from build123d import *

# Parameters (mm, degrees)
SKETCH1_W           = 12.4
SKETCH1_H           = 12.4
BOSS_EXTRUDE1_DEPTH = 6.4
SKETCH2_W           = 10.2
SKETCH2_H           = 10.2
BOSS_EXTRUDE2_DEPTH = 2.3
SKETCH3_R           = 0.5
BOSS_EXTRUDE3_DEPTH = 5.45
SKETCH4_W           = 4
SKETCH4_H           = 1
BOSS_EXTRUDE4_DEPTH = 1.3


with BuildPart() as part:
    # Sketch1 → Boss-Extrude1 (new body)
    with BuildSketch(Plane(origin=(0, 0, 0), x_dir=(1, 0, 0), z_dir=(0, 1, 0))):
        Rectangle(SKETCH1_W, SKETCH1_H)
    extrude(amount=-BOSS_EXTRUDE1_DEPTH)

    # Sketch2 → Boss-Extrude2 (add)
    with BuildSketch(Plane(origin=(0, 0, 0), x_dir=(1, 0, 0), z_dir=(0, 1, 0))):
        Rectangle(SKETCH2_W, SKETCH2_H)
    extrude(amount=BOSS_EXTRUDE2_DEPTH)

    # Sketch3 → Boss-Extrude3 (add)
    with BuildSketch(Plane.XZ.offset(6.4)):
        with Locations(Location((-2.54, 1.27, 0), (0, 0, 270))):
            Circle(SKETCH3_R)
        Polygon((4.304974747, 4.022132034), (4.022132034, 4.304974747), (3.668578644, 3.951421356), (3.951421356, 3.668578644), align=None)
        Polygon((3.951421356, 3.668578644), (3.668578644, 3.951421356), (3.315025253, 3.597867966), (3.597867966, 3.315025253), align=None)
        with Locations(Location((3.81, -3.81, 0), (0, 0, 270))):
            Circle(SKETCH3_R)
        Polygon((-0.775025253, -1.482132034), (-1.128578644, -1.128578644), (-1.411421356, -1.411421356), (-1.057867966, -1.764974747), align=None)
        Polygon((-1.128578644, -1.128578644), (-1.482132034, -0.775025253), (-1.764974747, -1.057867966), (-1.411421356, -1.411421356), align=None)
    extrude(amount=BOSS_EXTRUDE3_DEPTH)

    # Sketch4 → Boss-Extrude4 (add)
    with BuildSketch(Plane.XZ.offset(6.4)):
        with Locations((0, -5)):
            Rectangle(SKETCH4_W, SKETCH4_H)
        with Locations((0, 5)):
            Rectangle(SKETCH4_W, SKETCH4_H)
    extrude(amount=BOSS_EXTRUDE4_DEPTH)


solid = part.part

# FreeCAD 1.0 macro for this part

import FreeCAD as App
import Part
import Sketcher
from FreeCAD import Vector
Q = App.Units.Quantity

doc = App.newDocument("Part")
body = doc.addObject("PartDesign::Body", "Body")

sketch1 = body.newObject("Sketcher::SketchObject", "Sketch")
sketch1.AttachmentSupport = (doc.getObject("XZ_Plane"), [""])
sketch1.MapMode = "FlatFace"
sketch1.addGeometry(Part.LineSegment(Vector(-6.2, -6.2, 0), Vector(-6.2, 6.2, 0)), False)
sketch1.addGeometry(Part.LineSegment(Vector(-6.2, 6.2, 0), Vector(6.2, 6.2, 0)), False)
sketch1.addGeometry(Part.LineSegment(Vector(6.2, 6.2, 0), Vector(6.2, -6.2, 0)), False)
sketch1.addGeometry(Part.LineSegment(Vector(6.2, -6.2, 0), Vector(-6.2, -6.2, 0)), False)
sketch1.addConstraint(Sketcher.Constraint("Coincident", 0, 2, 1, 1))
sketch1.addConstraint(Sketcher.Constraint("Coincident", 1, 2, 2, 1))
sketch1.addConstraint(Sketcher.Constraint("Coincident", 2, 2, 3, 1))
sketch1.addConstraint(Sketcher.Constraint("Coincident", 3, 2, 0, 1))
sketch1.addConstraint(Sketcher.Constraint("Vertical", 0))
sketch1.addConstraint(Sketcher.Constraint("Horizontal", 1))
sketch1.addConstraint(Sketcher.Constraint("Vertical", 2))
sketch1.addConstraint(Sketcher.Constraint("Horizontal", 3))
sketch1.addConstraint(Sketcher.Constraint("Symmetric", 0, 2, 2, 2, -1, 1))
sketch1.addConstraint(Sketcher.Constraint("Equal", 3, 0))
sketch1.addConstraint(Sketcher.Constraint("DistanceX", 1, 1, 1, 2, 12.4))
pad1 = body.newObject("PartDesign::Pad", "Pad")
pad1.Profile = sketch1
pad1.Length = 6.4

sketch2 = body.newObject("Sketcher::SketchObject", "Sketch001")
sketch2.AttachmentSupport = (doc.getObject("XZ_Plane"), [""])
sketch2.MapMode = "FlatFace"
sketch2.addGeometry(Part.LineSegment(Vector(-5.1, -5.1, 0), Vector(-5.1, 5.1, 0)), False)
sketch2.addGeometry(Part.LineSegment(Vector(-5.1, 5.1, 0), Vector(5.1, 5.1, 0)), False)
sketch2.addGeometry(Part.LineSegment(Vector(5.1, 5.1, 0), Vector(5.1, -5.1, 0)), False)
sketch2.addGeometry(Part.LineSegment(Vector(5.1, -5.1, 0), Vector(-5.1, -5.1, 0)), False)
sketch2.addConstraint(Sketcher.Constraint("Coincident", 0, 2, 1, 1))
sketch2.addConstraint(Sketcher.Constraint("Coincident", 1, 2, 2, 1))
sketch2.addConstraint(Sketcher.Constraint("Coincident", 2, 2, 3, 1))
sketch2.addConstraint(Sketcher.Constraint("Coincident", 3, 2, 0, 1))
sketch2.addConstraint(Sketcher.Constraint("Vertical", 0))
sketch2.addConstraint(Sketcher.Constraint("Horizontal", 1))
sketch2.addConstraint(Sketcher.Constraint("Vertical", 2))
sketch2.addConstraint(Sketcher.Constraint("Horizontal", 3))
sketch2.addConstraint(Sketcher.Constraint("Symmetric", 0, 2, 2, 2, -1, 1))
sketch2.addConstraint(Sketcher.Constraint("Equal", 3, 0))
sketch2.addConstraint(Sketcher.Constraint("DistanceX", 1, 1, 1, 2, 10.2))
pad2 = body.newObject("PartDesign::Pad", "Pad001")
pad2.Profile = sketch2
pad2.Length = 2.3
pad2.Reversed = True

sketch3 = body.newObject("Sketcher::SketchObject", "Sketch002")
sketch3.AttachmentSupport = (doc.getObject("XZ_Plane"), [""])
sketch3.MapMode = "FlatFace"
sketch3.AttachmentOffset = App.Placement(Vector(0, 0, 6.4), App.Rotation())
sketch3.addGeometry(Part.Circle(Vector(-2.54, 1.27, 0), Vector(0, 0, 1), 0.5), False)
sketch3.addGeometry(Part.LineSegment(Vector(4.304975, 4.022132, 0), Vector(4.022132, 4.304975, 0)), False)
sketch3.addGeometry(Part.LineSegment(Vector(4.022132, 4.304975, 0), Vector(3.668579, 3.951421, 0)), False)
sketch3.addGeometry(Part.LineSegment(Vector(3.668579, 3.951421, 0), Vector(3.315025, 3.597868, 0)), False)
sketch3.addGeometry(Part.LineSegment(Vector(3.315025, 3.597868, 0), Vector(3.597868, 3.315025, 0)), False)
sketch3.addGeometry(Part.LineSegment(Vector(3.597868, 3.315025, 0), Vector(3.951421, 3.668579, 0)), False)
sketch3.addGeometry(Part.LineSegment(Vector(3.951421, 3.668579, 0), Vector(4.304975, 4.022132, 0)), False)
sketch3.addGeometry(Part.Circle(Vector(3.81, -3.81, 0), Vector(0, 0, 1), 0.5), False)
sketch3.addGeometry(Part.LineSegment(Vector(-0.775025, -1.482132, 0), Vector(-1.128579, -1.128579, 0)), False)
sketch3.addGeometry(Part.LineSegment(Vector(-1.128579, -1.128579, 0), Vector(-1.482132, -0.775025, 0)), False)
sketch3.addGeometry(Part.LineSegment(Vector(-1.482132, -0.775025, 0), Vector(-1.764975, -1.057868, 0)), False)
sketch3.addGeometry(Part.LineSegment(Vector(-1.764975, -1.057868, 0), Vector(-1.411421, -1.411421, 0)), False)
sketch3.addGeometry(Part.LineSegment(Vector(-1.411421, -1.411421, 0), Vector(-1.057868, -1.764975, 0)), False)
sketch3.addGeometry(Part.LineSegment(Vector(-1.057868, -1.764975, 0), Vector(-0.775025, -1.482132, 0)), False)
sketch3.addConstraint(Sketcher.Constraint("Coincident", 1, 2, 2, 1))
sketch3.addConstraint(Sketcher.Constraint("Coincident", 2, 2, 3, 1))
sketch3.addConstraint(Sketcher.Constraint("Coincident", 3, 2, 4, 1))
sketch3.addConstraint(Sketcher.Constraint("Coincident", 4, 2, 5, 1))
sketch3.addConstraint(Sketcher.Constraint("Coincident", 5, 2, 6, 1))
sketch3.addConstraint(Sketcher.Constraint("Coincident", 6, 2, 1, 1))
sketch3.addConstraint(Sketcher.Constraint("Coincident", 8, 2, 9, 1))
sketch3.addConstraint(Sketcher.Constraint("Coincident", 9, 2, 10, 1))
sketch3.addConstraint(Sketcher.Constraint("Coincident", 10, 2, 11, 1))
sketch3.addConstraint(Sketcher.Constraint("Coincident", 11, 2, 12, 1))
sketch3.addConstraint(Sketcher.Constraint("Coincident", 12, 2, 13, 1))
sketch3.addConstraint(Sketcher.Constraint("Coincident", 13, 2, 8, 1))
sketch3.addConstraint(Sketcher.Constraint("Equal", 0, 7))
sketch3.addConstraint(Sketcher.Constraint("Perpendicular", 1, 2))
sketch3.addConstraint(Sketcher.Constraint("Parallel", 2, 3))
sketch3.addConstraint(Sketcher.Constraint("Perpendicular", 3, 4))
sketch3.addConstraint(Sketcher.Constraint("Perpendicular", 4, 5))
sketch3.addConstraint(Sketcher.Constraint("Parallel", 5, 6))
sketch3.addConstraint(Sketcher.Constraint("Perpendicular", 6, 8))
sketch3.addConstraint(Sketcher.Constraint("Parallel", 8, 9))
sketch3.addConstraint(Sketcher.Constraint("Perpendicular", 9, 10))
sketch3.addConstraint(Sketcher.Constraint("Perpendicular", 10, 11))
sketch3.addConstraint(Sketcher.Constraint("Parallel", 11, 12))
sketch3.addConstraint(Sketcher.Constraint("Perpendicular", 12, 13))
sketch3.addConstraint(Sketcher.Constraint("Equal", 2, 3))
sketch3.addConstraint(Sketcher.Constraint("Equal", 3, 5))
sketch3.addConstraint(Sketcher.Constraint("Equal", 6, 8))
sketch3.addConstraint(Sketcher.Constraint("Equal", 8, 9))
sketch3.addConstraint(Sketcher.Constraint("Equal", 4, 10))
sketch3.addConstraint(Sketcher.Constraint("Equal", 9, 11))
sketch3.addConstraint(Sketcher.Constraint("Diameter", 0, 1.0))
sketch3.addConstraint(Sketcher.Constraint("Angle", 1, Q("135 deg")))
sketch3.addConstraint(Sketcher.Constraint("Distance", 1, 0.4))
sketch3.addConstraint(Sketcher.Constraint("Distance", 2, 0.5))
sketch3.addConstraint(Sketcher.Constraint("DistanceX", 0, 3, -1, 1, 2.54))
sketch3.addConstraint(Sketcher.Constraint("DistanceY", -1, 1, 0, 3, 1.27))
sketch3.addConstraint(Sketcher.Constraint("DistanceX", -1, 1, 7, 3, 3.81))
sketch3.addConstraint(Sketcher.Constraint("DistanceY", 7, 3, -1, 1, 3.81))
sketch3.addConstraint(Sketcher.Constraint("DistanceY", 8, 2, 2, 2, 5.08))
sketch3.addConstraint(Sketcher.Constraint("DistanceX", 9, 2, 4, 2, 5.08))
sketch3.addConstraint(Sketcher.Constraint("DistanceX", -1, 1, 2, 2, 3.668579))
sketch3.addConstraint(Sketcher.Constraint("DistanceY", -1, 1, 2, 2, 3.951421))
pad3 = body.newObject("PartDesign::Pad", "Pad002")
pad3.Profile = sketch3
pad3.Length = 5.45

sketch4 = body.newObject("Sketcher::SketchObject", "Sketch003")
sketch4.AttachmentSupport = (doc.getObject("XZ_Plane"), [""])
sketch4.MapMode = "FlatFace"
sketch4.AttachmentOffset = App.Placement(Vector(0, 0, 6.4), App.Rotation())
sketch4.addGeometry(Part.LineSegment(Vector(-2, -4.5, 0), Vector(-2, -5.5, 0)), False)
sketch4.addGeometry(Part.LineSegment(Vector(-2, -5.5, 0), Vector(2, -5.5, 0)), False)
sketch4.addGeometry(Part.LineSegment(Vector(2, -5.5, 0), Vector(2, -4.5, 0)), False)
sketch4.addGeometry(Part.LineSegment(Vector(2, -4.5, 0), Vector(-2, -4.5, 0)), False)
sketch4.addGeometry(Part.LineSegment(Vector(-2, 5.5, 0), Vector(-2, 4.5, 0)), False)
sketch4.addGeometry(Part.LineSegment(Vector(-2, 4.5, 0), Vector(2, 4.5, 0)), False)
sketch4.addGeometry(Part.LineSegment(Vector(2, 4.5, 0), Vector(2, 5.5, 0)), False)
sketch4.addGeometry(Part.LineSegment(Vector(2, 5.5, 0), Vector(-2, 5.5, 0)), False)
sketch4.addConstraint(Sketcher.Constraint("Coincident", 0, 2, 1, 1))
sketch4.addConstraint(Sketcher.Constraint("Coincident", 1, 2, 2, 1))
sketch4.addConstraint(Sketcher.Constraint("Coincident", 2, 2, 3, 1))
sketch4.addConstraint(Sketcher.Constraint("Coincident", 3, 2, 0, 1))
sketch4.addConstraint(Sketcher.Constraint("Coincident", 4, 2, 5, 1))
sketch4.addConstraint(Sketcher.Constraint("Coincident", 5, 2, 6, 1))
sketch4.addConstraint(Sketcher.Constraint("Coincident", 6, 2, 7, 1))
sketch4.addConstraint(Sketcher.Constraint("Coincident", 7, 2, 4, 1))
sketch4.addConstraint(Sketcher.Constraint("Vertical", 0))
sketch4.addConstraint(Sketcher.Constraint("Horizontal", 1))
sketch4.addConstraint(Sketcher.Constraint("Vertical", 2))
sketch4.addConstraint(Sketcher.Constraint("Horizontal", 3))
sketch4.addConstraint(Sketcher.Constraint("Vertical", 4))
sketch4.addConstraint(Sketcher.Constraint("Horizontal", 5))
sketch4.addConstraint(Sketcher.Constraint("Vertical", 6))
sketch4.addConstraint(Sketcher.Constraint("Horizontal", 7))
sketch4.addConstraint(Sketcher.Constraint("Symmetric", 2, 2, 4, 2, -1, 1))
sketch4.addConstraint(Sketcher.Constraint("Symmetric", 0, 2, 6, 2, -1, 1))
sketch4.addConstraint(Sketcher.Constraint("Vertical", 3, 2, 4, 2))
sketch4.addConstraint(Sketcher.Constraint("DistanceX", 1, 1, 1, 2, 4.0))
sketch4.addConstraint(Sketcher.Constraint("DistanceY", 0, 2, 0, 1, 1.0))
sketch4.addConstraint(Sketcher.Constraint("DistanceY", 3, 2, 4, 2, 9.0))
pad4 = body.newObject("PartDesign::Pad", "Pad003")
pad4.Profile = sketch4
pad4.Length = 1.3

doc.recompute()
